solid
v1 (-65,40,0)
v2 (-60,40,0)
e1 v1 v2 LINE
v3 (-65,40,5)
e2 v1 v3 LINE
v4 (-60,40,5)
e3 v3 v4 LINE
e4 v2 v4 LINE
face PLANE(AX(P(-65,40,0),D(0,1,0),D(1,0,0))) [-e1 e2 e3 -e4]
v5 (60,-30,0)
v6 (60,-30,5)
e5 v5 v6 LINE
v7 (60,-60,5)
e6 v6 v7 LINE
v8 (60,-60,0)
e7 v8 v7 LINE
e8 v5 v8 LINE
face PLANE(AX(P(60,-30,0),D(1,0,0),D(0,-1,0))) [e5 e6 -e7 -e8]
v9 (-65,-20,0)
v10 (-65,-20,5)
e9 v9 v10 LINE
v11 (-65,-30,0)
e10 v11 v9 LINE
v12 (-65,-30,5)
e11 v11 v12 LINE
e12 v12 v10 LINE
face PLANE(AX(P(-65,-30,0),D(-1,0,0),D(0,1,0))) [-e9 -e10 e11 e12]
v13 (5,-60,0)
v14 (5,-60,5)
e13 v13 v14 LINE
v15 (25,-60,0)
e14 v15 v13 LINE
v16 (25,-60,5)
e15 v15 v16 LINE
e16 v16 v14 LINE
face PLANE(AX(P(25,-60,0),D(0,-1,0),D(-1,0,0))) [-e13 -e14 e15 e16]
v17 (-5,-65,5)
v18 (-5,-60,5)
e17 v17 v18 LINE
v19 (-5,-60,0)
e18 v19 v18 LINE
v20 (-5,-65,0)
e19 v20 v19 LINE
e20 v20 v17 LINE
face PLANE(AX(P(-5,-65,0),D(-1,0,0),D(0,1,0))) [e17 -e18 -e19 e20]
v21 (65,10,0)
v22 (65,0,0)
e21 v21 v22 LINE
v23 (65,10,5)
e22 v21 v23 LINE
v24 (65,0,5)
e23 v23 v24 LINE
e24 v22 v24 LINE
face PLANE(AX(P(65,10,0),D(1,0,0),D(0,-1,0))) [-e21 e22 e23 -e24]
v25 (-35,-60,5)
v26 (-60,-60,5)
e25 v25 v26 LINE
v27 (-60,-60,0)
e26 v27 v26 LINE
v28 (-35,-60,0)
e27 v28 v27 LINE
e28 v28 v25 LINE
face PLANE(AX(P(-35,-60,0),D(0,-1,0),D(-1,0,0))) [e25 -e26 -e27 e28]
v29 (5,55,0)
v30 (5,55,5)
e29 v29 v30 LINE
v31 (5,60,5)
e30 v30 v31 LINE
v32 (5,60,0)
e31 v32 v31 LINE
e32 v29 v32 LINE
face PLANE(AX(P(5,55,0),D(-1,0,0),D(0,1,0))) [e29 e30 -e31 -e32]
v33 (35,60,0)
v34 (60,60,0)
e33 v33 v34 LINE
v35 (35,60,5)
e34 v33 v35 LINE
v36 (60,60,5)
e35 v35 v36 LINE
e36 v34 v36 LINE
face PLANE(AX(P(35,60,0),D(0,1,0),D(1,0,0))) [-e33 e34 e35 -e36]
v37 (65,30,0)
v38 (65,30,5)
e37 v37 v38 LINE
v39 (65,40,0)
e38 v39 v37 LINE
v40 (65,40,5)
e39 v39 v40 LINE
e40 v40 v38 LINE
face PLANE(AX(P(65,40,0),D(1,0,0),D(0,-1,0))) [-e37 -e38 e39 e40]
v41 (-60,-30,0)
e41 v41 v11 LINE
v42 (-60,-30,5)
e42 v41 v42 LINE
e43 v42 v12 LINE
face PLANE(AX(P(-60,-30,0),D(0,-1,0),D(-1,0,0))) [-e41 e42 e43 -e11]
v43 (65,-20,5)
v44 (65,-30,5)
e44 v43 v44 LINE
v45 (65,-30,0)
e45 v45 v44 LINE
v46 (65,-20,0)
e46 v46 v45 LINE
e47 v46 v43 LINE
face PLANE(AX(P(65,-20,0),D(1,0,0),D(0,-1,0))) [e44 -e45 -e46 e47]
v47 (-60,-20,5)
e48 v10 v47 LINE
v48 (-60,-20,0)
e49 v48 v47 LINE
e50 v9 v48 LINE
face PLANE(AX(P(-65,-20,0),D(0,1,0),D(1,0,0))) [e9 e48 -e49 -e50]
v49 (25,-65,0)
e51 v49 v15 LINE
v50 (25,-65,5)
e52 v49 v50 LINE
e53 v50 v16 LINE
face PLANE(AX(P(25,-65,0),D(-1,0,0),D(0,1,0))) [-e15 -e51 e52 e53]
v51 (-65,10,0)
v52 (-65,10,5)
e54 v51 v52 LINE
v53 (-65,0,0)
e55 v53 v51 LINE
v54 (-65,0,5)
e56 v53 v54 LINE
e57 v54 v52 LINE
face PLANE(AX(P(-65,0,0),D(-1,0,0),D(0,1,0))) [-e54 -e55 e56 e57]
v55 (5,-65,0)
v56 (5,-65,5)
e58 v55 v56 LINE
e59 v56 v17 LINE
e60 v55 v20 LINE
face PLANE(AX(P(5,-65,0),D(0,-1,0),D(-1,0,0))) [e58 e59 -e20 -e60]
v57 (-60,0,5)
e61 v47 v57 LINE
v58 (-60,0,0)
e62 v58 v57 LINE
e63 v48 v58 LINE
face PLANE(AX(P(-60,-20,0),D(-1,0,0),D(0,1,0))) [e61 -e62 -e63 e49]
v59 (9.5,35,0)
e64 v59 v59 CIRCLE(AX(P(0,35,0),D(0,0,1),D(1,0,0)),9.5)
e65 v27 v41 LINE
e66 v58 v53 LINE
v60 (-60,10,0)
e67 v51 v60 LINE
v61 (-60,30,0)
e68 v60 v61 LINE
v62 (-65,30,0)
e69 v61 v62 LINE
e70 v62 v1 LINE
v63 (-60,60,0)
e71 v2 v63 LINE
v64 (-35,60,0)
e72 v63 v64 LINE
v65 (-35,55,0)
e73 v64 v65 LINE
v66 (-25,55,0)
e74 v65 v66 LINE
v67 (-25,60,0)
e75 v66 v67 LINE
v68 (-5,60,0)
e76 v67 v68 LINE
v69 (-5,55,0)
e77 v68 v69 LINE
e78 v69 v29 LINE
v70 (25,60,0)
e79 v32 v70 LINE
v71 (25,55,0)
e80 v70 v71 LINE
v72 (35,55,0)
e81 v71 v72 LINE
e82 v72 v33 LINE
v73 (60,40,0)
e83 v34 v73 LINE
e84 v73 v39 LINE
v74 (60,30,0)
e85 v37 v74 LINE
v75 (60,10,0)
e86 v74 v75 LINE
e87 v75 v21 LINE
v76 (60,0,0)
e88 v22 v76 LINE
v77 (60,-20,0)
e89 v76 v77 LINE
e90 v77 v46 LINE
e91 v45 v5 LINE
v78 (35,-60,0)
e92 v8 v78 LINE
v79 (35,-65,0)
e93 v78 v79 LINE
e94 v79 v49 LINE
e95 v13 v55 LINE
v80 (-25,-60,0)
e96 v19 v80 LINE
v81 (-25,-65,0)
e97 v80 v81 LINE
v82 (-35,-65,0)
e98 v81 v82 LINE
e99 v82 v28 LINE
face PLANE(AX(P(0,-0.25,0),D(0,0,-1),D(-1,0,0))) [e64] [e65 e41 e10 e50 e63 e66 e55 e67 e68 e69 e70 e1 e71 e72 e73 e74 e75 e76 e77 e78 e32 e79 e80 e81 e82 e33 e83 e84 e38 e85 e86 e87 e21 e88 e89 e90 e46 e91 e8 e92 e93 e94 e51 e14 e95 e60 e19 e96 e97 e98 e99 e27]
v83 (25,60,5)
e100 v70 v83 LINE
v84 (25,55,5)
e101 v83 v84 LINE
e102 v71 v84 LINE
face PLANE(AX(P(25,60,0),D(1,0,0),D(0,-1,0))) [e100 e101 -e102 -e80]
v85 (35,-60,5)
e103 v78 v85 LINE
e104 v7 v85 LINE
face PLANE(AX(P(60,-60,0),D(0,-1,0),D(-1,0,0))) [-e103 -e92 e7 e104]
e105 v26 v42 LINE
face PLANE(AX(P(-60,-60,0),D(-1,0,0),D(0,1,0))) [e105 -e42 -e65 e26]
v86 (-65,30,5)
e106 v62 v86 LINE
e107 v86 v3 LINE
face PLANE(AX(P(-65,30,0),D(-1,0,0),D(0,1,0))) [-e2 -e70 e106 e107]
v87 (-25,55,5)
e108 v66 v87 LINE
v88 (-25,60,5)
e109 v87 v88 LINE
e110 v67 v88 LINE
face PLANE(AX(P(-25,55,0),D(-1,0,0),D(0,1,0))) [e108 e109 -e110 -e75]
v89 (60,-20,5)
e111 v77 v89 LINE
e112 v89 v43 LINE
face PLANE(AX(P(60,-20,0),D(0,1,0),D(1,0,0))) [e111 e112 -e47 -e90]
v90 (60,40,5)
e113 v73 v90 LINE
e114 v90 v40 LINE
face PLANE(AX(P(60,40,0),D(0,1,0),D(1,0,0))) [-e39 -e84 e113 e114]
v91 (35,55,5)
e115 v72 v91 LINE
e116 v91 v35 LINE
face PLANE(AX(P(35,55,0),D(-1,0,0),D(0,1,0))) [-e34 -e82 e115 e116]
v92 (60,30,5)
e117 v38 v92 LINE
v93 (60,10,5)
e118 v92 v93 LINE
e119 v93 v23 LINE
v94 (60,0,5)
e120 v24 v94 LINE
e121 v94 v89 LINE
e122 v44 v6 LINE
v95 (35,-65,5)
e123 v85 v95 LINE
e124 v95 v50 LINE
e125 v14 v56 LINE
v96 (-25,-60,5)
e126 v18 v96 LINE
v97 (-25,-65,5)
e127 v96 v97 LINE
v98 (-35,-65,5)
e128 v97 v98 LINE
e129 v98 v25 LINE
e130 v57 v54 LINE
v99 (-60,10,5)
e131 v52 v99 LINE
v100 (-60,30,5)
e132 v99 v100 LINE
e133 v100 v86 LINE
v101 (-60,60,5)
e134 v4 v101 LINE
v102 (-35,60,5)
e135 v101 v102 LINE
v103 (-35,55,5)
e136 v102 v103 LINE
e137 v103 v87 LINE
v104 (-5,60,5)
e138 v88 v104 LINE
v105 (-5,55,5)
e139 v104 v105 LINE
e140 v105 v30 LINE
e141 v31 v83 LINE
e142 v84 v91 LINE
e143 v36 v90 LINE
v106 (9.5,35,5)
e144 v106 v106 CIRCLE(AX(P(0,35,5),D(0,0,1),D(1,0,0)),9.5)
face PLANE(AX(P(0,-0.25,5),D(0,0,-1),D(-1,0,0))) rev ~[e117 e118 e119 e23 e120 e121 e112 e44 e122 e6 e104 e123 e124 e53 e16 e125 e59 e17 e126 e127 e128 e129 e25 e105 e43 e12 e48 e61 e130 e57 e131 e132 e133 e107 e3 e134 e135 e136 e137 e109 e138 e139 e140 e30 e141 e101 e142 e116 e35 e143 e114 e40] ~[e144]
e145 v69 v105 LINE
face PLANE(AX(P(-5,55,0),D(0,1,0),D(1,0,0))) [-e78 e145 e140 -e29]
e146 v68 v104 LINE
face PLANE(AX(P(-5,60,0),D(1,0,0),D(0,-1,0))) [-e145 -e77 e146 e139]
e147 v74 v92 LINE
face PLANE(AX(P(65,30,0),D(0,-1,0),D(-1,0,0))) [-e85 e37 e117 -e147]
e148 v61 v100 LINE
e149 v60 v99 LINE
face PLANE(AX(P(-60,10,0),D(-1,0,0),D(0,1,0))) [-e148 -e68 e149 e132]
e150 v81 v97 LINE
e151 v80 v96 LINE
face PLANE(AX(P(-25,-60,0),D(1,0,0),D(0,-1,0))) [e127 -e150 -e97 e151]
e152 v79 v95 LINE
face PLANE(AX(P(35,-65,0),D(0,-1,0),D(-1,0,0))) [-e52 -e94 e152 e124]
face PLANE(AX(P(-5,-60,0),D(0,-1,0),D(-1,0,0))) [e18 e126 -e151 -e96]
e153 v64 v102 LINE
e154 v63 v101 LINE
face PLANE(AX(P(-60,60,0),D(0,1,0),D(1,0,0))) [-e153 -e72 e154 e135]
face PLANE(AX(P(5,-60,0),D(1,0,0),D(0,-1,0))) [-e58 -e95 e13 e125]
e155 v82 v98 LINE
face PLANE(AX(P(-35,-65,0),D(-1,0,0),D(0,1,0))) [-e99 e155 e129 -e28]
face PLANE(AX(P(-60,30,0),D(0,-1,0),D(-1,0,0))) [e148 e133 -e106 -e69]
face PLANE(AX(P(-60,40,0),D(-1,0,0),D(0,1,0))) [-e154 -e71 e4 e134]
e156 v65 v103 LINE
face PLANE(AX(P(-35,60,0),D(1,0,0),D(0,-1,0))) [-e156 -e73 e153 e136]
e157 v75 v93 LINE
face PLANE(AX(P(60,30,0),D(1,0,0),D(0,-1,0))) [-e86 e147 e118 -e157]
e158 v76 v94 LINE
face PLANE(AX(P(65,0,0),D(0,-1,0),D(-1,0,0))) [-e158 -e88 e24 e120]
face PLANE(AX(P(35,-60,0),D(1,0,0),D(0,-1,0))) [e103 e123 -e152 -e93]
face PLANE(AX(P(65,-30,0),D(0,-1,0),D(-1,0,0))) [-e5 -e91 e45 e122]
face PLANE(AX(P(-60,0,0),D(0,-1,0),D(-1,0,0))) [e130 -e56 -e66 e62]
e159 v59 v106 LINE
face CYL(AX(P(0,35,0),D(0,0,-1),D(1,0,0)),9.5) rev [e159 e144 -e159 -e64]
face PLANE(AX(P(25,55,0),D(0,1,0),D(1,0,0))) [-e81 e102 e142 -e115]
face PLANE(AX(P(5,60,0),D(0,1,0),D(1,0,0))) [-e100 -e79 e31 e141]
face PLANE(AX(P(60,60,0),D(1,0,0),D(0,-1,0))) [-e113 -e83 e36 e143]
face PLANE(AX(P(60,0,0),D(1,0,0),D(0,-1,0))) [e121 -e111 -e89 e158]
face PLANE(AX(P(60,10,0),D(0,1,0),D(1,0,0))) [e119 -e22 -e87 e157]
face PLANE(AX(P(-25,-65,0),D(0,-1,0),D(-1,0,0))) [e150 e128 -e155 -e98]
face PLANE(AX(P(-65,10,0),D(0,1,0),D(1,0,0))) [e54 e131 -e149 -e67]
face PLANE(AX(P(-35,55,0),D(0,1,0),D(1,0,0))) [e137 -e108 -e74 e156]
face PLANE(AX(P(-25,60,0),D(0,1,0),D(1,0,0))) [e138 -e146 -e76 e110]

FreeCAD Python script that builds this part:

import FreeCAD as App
import Part
import Sketcher

doc = App.newDocument("Part")
body = doc.addObject("PartDesign::Body", "Body")

# Sketch on XY plane
sketch1 = body.newObject("Sketcher::SketchObject", "Sketch")
sketch1.AttachmentSupport = (doc.getObject("XY_Plane"), [""])
sketch1.MapMode = "FlatFace"
sketch1.addGeometry(Part.LineSegment(App.Vector(-35, 55, 0), App.Vector(-35, 60, 0)), False)
sketch1.addGeometry(Part.LineSegment(App.Vector(-35, 60, 0), App.Vector(-60, 60, 0)), False)
sketch1.addGeometry(Part.LineSegment(App.Vector(-60, 60, 0), App.Vector(-60, 40, 0)), False)
sketch1.addGeometry(Part.LineSegment(App.Vector(-60, 40, 0), App.Vector(-65, 40, 0)), False)
sketch1.addGeometry(Part.LineSegment(App.Vector(-65, 40, 0), App.Vector(-65, 30, 0)), False)
sketch1.addGeometry(Part.LineSegment(App.Vector(-65, 30, 0), App.Vector(-60, 30, 0)), False)
sketch1.addGeometry(Part.LineSegment(App.Vector(-60, 30, 0), App.Vector(-60, 10, 0)), False)
sketch1.addGeometry(Part.LineSegment(App.Vector(-60, 10, 0), App.Vector(-65, 10, 0)), False)
sketch1.addGeometry(Part.LineSegment(App.Vector(-65, 10, 0), App.Vector(-65, 0, 0)), False)
sketch1.addGeometry(Part.LineSegment(App.Vector(-65, 0, 0), App.Vector(-60, 0, 0)), False)
sketch1.addGeometry(Part.LineSegment(App.Vector(-60, 0, 0), App.Vector(-60, -20, 0)), False)
sketch1.addGeometry(Part.LineSegment(App.Vector(-60, -20, 0), App.Vector(-65, -20, 0)), False)
sketch1.addGeometry(Part.LineSegment(App.Vector(-65, -20, 0), App.Vector(-65, -30, 0)), False)
sketch1.addGeometry(Part.LineSegment(App.Vector(-65, -30, 0), App.Vector(-60, -30, 0)), False)
sketch1.addGeometry(Part.LineSegment(App.Vector(-60, -30, 0), App.Vector(-60, -60, 0)), False)
sketch1.addGeometry(Part.LineSegment(App.Vector(-60, -60, 0), App.Vector(-35, -60, 0)), False)
sketch1.addGeometry(Part.LineSegment(App.Vector(-35, -60, 0), App.Vector(-35, -65, 0)), False)
sketch1.addGeometry(Part.LineSegment(App.Vector(-35, -65, 0), App.Vector(-25, -65, 0)), False)
sketch1.addGeometry(Part.LineSegment(App.Vector(-25, -65, 0), App.Vector(-25, -60, 0)), False)
sketch1.addGeometry(Part.LineSegment(App.Vector(-25, -60, 0), App.Vector(-5, -60, 0)), False)
sketch1.addGeometry(Part.LineSegment(App.Vector(-5, -60, 0), App.Vector(-5, -65, 0)), False)
sketch1.addGeometry(Part.LineSegment(App.Vector(-5, -65, 0), App.Vector(5, -65, 0)), False)
sketch1.addGeometry(Part.LineSegment(App.Vector(5, -65, 0), App.Vector(5, -60, 0)), False)
sketch1.addGeometry(Part.LineSegment(App.Vector(5, -60, 0), App.Vector(25, -60, 0)), False)
sketch1.addGeometry(Part.LineSegment(App.Vector(25, -60, 0), App.Vector(25, -65, 0)), False)
sketch1.addGeometry(Part.LineSegment(App.Vector(25, -65, 0), App.Vector(35, -65, 0)), False)
sketch1.addGeometry(Part.LineSegment(App.Vector(35, -65, 0), App.Vector(35, -60, 0)), False)
sketch1.addGeometry(Part.LineSegment(App.Vector(35, -60, 0), App.Vector(60, -60, 0)), False)
sketch1.addGeometry(Part.LineSegment(App.Vector(60, -60, 0), App.Vector(60, -30, 0)), False)
sketch1.addGeometry(Part.LineSegment(App.Vector(60, -30, 0), App.Vector(65, -30, 0)), False)
sketch1.addGeometry(Part.LineSegment(App.Vector(65, -30, 0), App.Vector(65, -20, 0)), False)
sketch1.addGeometry(Part.LineSegment(App.Vector(65, -20, 0), App.Vector(60, -20, 0)), False)
sketch1.addGeometry(Part.LineSegment(App.Vector(60, -20, 0), App.Vector(60, 0, 0)), False)
sketch1.addGeometry(Part.LineSegment(App.Vector(60, 0, 0), App.Vector(65, 0, 0)), False)
sketch1.addGeometry(Part.LineSegment(App.Vector(65, 0, 0), App.Vector(65, 10, 0)), False)
sketch1.addGeometry(Part.LineSegment(App.Vector(65, 10, 0), App.Vector(60, 10, 0)), False)
sketch1.addGeometry(Part.LineSegment(App.Vector(60, 10, 0), App.Vector(60, 30, 0)), False)
sketch1.addGeometry(Part.LineSegment(App.Vector(60, 30, 0), App.Vector(65, 30, 0)), False)
sketch1.addGeometry(Part.LineSegment(App.Vector(65, 30, 0), App.Vector(65, 40, 0)), False)
sketch1.addGeometry(Part.LineSegment(App.Vector(65, 40, 0), App.Vector(60, 40, 0)), False)
sketch1.addGeometry(Part.LineSegment(App.Vector(60, 40, 0), App.Vector(60, 60, 0)), False)
sketch1.addGeometry(Part.LineSegment(App.Vector(60, 60, 0), App.Vector(35, 60, 0)), False)
sketch1.addGeometry(Part.LineSegment(App.Vector(35, 60, 0), App.Vector(35, 55, 0)), False)
sketch1.addGeometry(Part.LineSegment(App.Vector(35, 55, 0), App.Vector(25, 55, 0)), False)
sketch1.addGeometry(Part.LineSegment(App.Vector(25, 55, 0), App.Vector(25, 60, 0)), False)
sketch1.addGeometry(Part.LineSegment(App.Vector(25, 60, 0), App.Vector(5, 60, 0)), False)
sketch1.addGeometry(Part.LineSegment(App.Vector(5, 60, 0), App.Vector(5, 55, 0)), False)
sketch1.addGeometry(Part.LineSegment(App.Vector(5, 55, 0), App.Vector(-5, 55, 0)), False)
sketch1.addGeometry(Part.LineSegment(App.Vector(-5, 55, 0), App.Vector(-5, 60, 0)), False)
sketch1.addGeometry(Part.LineSegment(App.Vector(-5, 60, 0), App.Vector(-25, 60, 0)), False)
sketch1.addGeometry(Part.LineSegment(App.Vector(-25, 60, 0), App.Vector(-25, 55, 0)), False)
sketch1.addGeometry(Part.LineSegment(App.Vector(-25, 55, 0), App.Vector(-35, 55, 0)), False)
sketch1.addGeometry(Part.Circle(App.Vector(0, 35, 0), App.Vector(0, 0, 1), 10), False)
sketch1.addConstraint(Sketcher.Constraint("Coincident", 0, 2, 1, 1))
sketch1.addConstraint(Sketcher.Constraint("Coincident", 1, 2, 2, 1))
sketch1.addConstraint(Sketcher.Constraint("Coincident", 2, 2, 3, 1))
sketch1.addConstraint(Sketcher.Constraint("Coincident", 3, 2, 4, 1))
sketch1.addConstraint(Sketcher.Constraint("Coincident", 4, 2, 5, 1))
sketch1.addConstraint(Sketcher.Constraint("Coincident", 5, 2, 6, 1))
sketch1.addConstraint(Sketcher.Constraint("Coincident", 6, 2, 7, 1))
sketch1.addConstraint(Sketcher.Constraint("Coincident", 7, 2, 8, 1))
sketch1.addConstraint(Sketcher.Constraint("Coincident", 8, 2, 9, 1))
sketch1.addConstraint(Sketcher.Constraint("Coincident", 9, 2, 10, 1))
sketch1.addConstraint(Sketcher.Constraint("Coincident", 10, 2, 11, 1))
sketch1.addConstraint(Sketcher.Constraint("Coincident", 11, 2, 12, 1))
sketch1.addConstraint(Sketcher.Constraint("Coincident", 12, 2, 13, 1))
sketch1.addConstraint(Sketcher.Constraint("Coincident", 13, 2, 14, 1))
sketch1.addConstraint(Sketcher.Constraint("Coincident", 14, 2, 15, 1))
sketch1.addConstraint(Sketcher.Constraint("Coincident", 15, 2, 16, 1))
sketch1.addConstraint(Sketcher.Constraint("Coincident", 16, 2, 17, 1))
sketch1.addConstraint(Sketcher.Constraint("Coincident", 17, 2, 18, 1))
sketch1.addConstraint(Sketcher.Constraint("Coincident", 18, 2, 19, 1))
sketch1.addConstraint(Sketcher.Constraint("Coincident", 19, 2, 20, 1))
sketch1.addConstraint(Sketcher.Constraint("Coincident", 20, 2, 21, 1))
sketch1.addConstraint(Sketcher.Constraint("Coincident", 21, 2, 22, 1))
sketch1.addConstraint(Sketcher.Constraint("Coincident", 22, 2, 23, 1))
sketch1.addConstraint(Sketcher.Constraint("Coincident", 23, 2, 24, 1))
sketch1.addConstraint(Sketcher.Constraint("Coincident", 24, 2, 25, 1))
sketch1.addConstraint(Sketcher.Constraint("Coincident", 25, 2, 26, 1))
sketch1.addConstraint(Sketcher.Constraint("Coincident", 26, 2, 27, 1))
sketch1.addConstraint(Sketcher.Constraint("Coincident", 27, 2, 28, 1))
sketch1.addConstraint(Sketcher.Constraint("Coincident", 28, 2, 29, 1))
sketch1.addConstraint(Sketcher.Constraint("Coincident", 29, 2, 30, 1))
sketch1.addConstraint(Sketcher.Constraint("Coincident", 30, 2, 31, 1))
sketch1.addConstraint(Sketcher.Constraint("Coincident", 31, 2, 32, 1))
sketch1.addConstraint(Sketcher.Constraint("Coincident", 32, 2, 33, 1))
sketch1.addConstraint(Sketcher.Constraint("Coincident", 33, 2, 34, 1))
sketch1.addConstraint(Sketcher.Constraint("Coincident", 34, 2, 35, 1))
sketch1.addConstraint(Sketcher.Constraint("Coincident", 35, 2, 36, 1))
sketch1.addConstraint(Sketcher.Constraint("Coincident", 36, 2, 37, 1))
sketch1.addConstraint(Sketcher.Constraint("Coincident", 37, 2, 38, 1))
sketch1.addConstraint(Sketcher.Constraint("Coincident", 38, 2, 39, 1))
sketch1.addConstraint(Sketcher.Constraint("Coincident", 39, 2, 40, 1))
sketch1.addConstraint(Sketcher.Constraint("Coincident", 40, 2, 41, 1))
sketch1.addConstraint(Sketcher.Constraint("Coincident", 41, 2, 42, 1))
sketch1.addConstraint(Sketcher.Constraint("Coincident", 42, 2, 43, 1))
sketch1.addConstraint(Sketcher.Constraint("Coincident", 43, 2, 44, 1))
sketch1.addConstraint(Sketcher.Constraint("Coincident", 44, 2, 45, 1))
sketch1.addConstraint(Sketcher.Constraint("Coincident", 45, 2, 46, 1))
sketch1.addConstraint(Sketcher.Constraint("Coincident", 46, 2, 47, 1))
sketch1.addConstraint(Sketcher.Constraint("Coincident", 47, 2, 48, 1))
sketch1.addConstraint(Sketcher.Constraint("Coincident", 48, 2, 49, 1))
sketch1.addConstraint(Sketcher.Constraint("Coincident", 49, 2, 50, 1))
sketch1.addConstraint(Sketcher.Constraint("Coincident", 50, 2, 51, 1))
sketch1.addConstraint(Sketcher.Constraint("Coincident", 51, 2, 0, 1))
sketch1.addConstraint(Sketcher.Constraint("Vertical", 0))
sketch1.addConstraint(Sketcher.Constraint("Horizontal", 1))
sketch1.addConstraint(Sketcher.Constraint("Vertical", 2))
sketch1.addConstraint(Sketcher.Constraint("Horizontal", 3))
sketch1.addConstraint(Sketcher.Constraint("Vertical", 4))
sketch1.addConstraint(Sketcher.Constraint("Horizontal", 5))
sketch1.addConstraint(Sketcher.Constraint("Vertical", 6))
sketch1.addConstraint(Sketcher.Constraint("Horizontal", 7))
sketch1.addConstraint(Sketcher.Constraint("Vertical", 8))
sketch1.addConstraint(Sketcher.Constraint("Horizontal", 9))
sketch1.addConstraint(Sketcher.Constraint("Vertical", 10))
sketch1.addConstraint(Sketcher.Constraint("Horizontal", 11))
sketch1.addConstraint(Sketcher.Constraint("Vertical", 12))
sketch1.addConstraint(Sketcher.Constraint("Horizontal", 13))
sketch1.addConstraint(Sketcher.Constraint("Vertical", 14))
sketch1.addConstraint(Sketcher.Constraint("Horizontal", 15))
sketch1.addConstraint(Sketcher.Constraint("Vertical", 16))
sketch1.addConstraint(Sketcher.Constraint("Horizontal", 17))
sketch1.addConstraint(Sketcher.Constraint("Vertical", 18))
sketch1.addConstraint(Sketcher.Constraint("Horizontal", 19))
sketch1.addConstraint(Sketcher.Constraint("Vertical", 20))
sketch1.addConstraint(Sketcher.Constraint("Horizontal", 21))
sketch1.addConstraint(Sketcher.Constraint("Vertical", 22))
sketch1.addConstraint(Sketcher.Constraint("Horizontal", 23))
sketch1.addConstraint(Sketcher.Constraint("Vertical", 24))
sketch1.addConstraint(Sketcher.Constraint("Horizontal", 25))
sketch1.addConstraint(Sketcher.Constraint("Vertical", 26))
sketch1.addConstraint(Sketcher.Constraint("Horizontal", 27))
sketch1.addConstraint(Sketcher.Constraint("Vertical", 28))
sketch1.addConstraint(Sketcher.Constraint("Horizontal", 29))
sketch1.addConstraint(Sketcher.Constraint("Vertical", 30))
sketch1.addConstraint(Sketcher.Constraint("Horizontal", 31))
sketch1.addConstraint(Sketcher.Constraint("Vertical", 32))
sketch1.addConstraint(Sketcher.Constraint("Horizontal", 33))
sketch1.addConstraint(Sketcher.Constraint("Vertical", 34))
sketch1.addConstraint(Sketcher.Constraint("Horizontal", 35))
sketch1.addConstraint(Sketcher.Constraint("Vertical", 36))
sketch1.addConstraint(Sketcher.Constraint("Horizontal", 37))
sketch1.addConstraint(Sketcher.Constraint("Vertical", 38))
sketch1.addConstraint(Sketcher.Constraint("Horizontal", 39))
sketch1.addConstraint(Sketcher.Constraint("Vertical", 40))
sketch1.addConstraint(Sketcher.Constraint("Horizontal", 41))
sketch1.addConstraint(Sketcher.Constraint("Vertical", 42))
sketch1.addConstraint(Sketcher.Constraint("Horizontal", 43))
sketch1.addConstraint(Sketcher.Constraint("Vertical", 44))
sketch1.addConstraint(Sketcher.Constraint("Horizontal", 45))
sketch1.addConstraint(Sketcher.Constraint("Vertical", 46))
sketch1.addConstraint(Sketcher.Constraint("Horizontal", 47))
sketch1.addConstraint(Sketcher.Constraint("Vertical", 48))
sketch1.addConstraint(Sketcher.Constraint("Horizontal", 49))
sketch1.addConstraint(Sketcher.Constraint("Vertical", 50))
sketch1.addConstraint(Sketcher.Constraint("Horizontal", 51))
sketch1.addConstraint(Sketcher.Constraint("Symmetric", 0, 2, 26, 2, -1, 1))
sketch1.addConstraint(Sketcher.Constraint("Symmetric", 5, 2, 28, 2, -1, 1))
sketch1.addConstraint(Sketcher.Constraint("Symmetric", 9, 2, 32, 2, -1, 1))
sketch1.addConstraint(Sketcher.Constraint("Symmetric", 13, 2, 36, 2, -1, 1))
sketch1.addConstraint(Sketcher.Constraint("Symmetric", 14, 2, 40, 2, -1, 1))
sketch1.addConstraint(Sketcher.Constraint("Symmetric", 18, 2, 44, 2, -1, 1))
sketch1.addConstraint(Sketcher.Constraint("Symmetric", 22, 2, 48, 2, -1, 1))
sketch1.addConstraint(Sketcher.Constraint("Symmetric", 19, 2, 22, 2, -2))
sketch1.addConstraint(Sketcher.Constraint("Symmetric", 17, 2, 24, 2, -2))
sketch1.addConstraint(Sketcher.Constraint("Symmetric", 15, 2, 26, 2, -2))
sketch1.addConstraint(Sketcher.Constraint("Symmetric", 13, 2, 28, 2, -2))
sketch1.addConstraint(Sketcher.Constraint("Symmetric", 11, 2, 30, 2, -2))
sketch1.addConstraint(Sketcher.Constraint("Symmetric", 8, 2, 33, 2, -2))
sketch1.addConstraint(Sketcher.Constraint("Symmetric", 3, 2, 38, 2, -2))
sketch1.addConstraint(Sketcher.Constraint("Symmetric", 43, 2, 50, 2, -2))
sketch1.addConstraint(Sketcher.Constraint("PointOnObject", 52, 3, -2))
sketch1.addConstraint(Sketcher.Constraint("Horizontal", 15, 2, 18, 2))
sketch1.addConstraint(Sketcher.Constraint("Horizontal", 17, 2, 20, 2))
sketch1.addConstraint(Sketcher.Constraint("Horizontal", 7, 2, 34, 2))
sketch1.addConstraint(Sketcher.Constraint("Horizontal", 43, 2, 46, 2))
sketch1.addConstraint(Sketcher.Constraint("Vertical", 2, 2, 5, 2))
sketch1.addConstraint(Sketcher.Constraint("Vertical", 4, 2, 7, 2))
sketch1.addConstraint(Sketcher.Constraint("Vertical", 6, 2, 9, 2))
sketch1.addConstraint(Sketcher.Constraint("Vertical", 8, 2, 11, 2))
sketch1.addConstraint(Sketcher.Constraint("Vertical", 26, 2, 41, 2))
sketch1.addConstraint(Sketcher.Constraint("Vertical", 22, 2, 45, 2))
sketch1.addConstraint(Sketcher.Constraint("Equal", 17, 21))
sketch1.addConstraint(Sketcher.Constraint("Equal", 39, 0))
sketch1.addConstraint(Sketcher.Constraint("Equal", 49, 2))
sketch1.addConstraint(Sketcher.Constraint("Equal", 51, 4))
sketch1.addConstraint(Sketcher.Constraint("Equal", 2, 6))
sketch1.addConstraint(Sketcher.Constraint("Equal", 4, 8))
sketch1.addConstraint(Sketcher.Constraint("Equal", 6, 10))
sketch1.addConstraint(Sketcher.Constraint("Equal", 0, 16))
sketch1.addConstraint(Sketcher.Constraint("Diameter", 52, 19.0))
sketch1.addConstraint(Sketcher.Constraint("DistanceX", 1, 2, 1, 1, 25.0))
sketch1.addConstraint(Sketcher.Constraint("DistanceX", 3, 2, 3, 1, 5.0))
sketch1.addConstraint(Sketcher.Constraint("DistanceX", 17, 1, 17, 2, 10.0))
sketch1.addConstraint(Sketcher.Constraint("DistanceX", 19, 1, 19, 2, 20.0))
sketch1.addConstraint(Sketcher.Constraint("DistanceY", -1, 1, 52, 3, 35.0))
pad1 = body.newObject("PartDesign::Pad", "Pad")
pad1.Profile = sketch1
pad1.Length = 5

doc.recompute()
